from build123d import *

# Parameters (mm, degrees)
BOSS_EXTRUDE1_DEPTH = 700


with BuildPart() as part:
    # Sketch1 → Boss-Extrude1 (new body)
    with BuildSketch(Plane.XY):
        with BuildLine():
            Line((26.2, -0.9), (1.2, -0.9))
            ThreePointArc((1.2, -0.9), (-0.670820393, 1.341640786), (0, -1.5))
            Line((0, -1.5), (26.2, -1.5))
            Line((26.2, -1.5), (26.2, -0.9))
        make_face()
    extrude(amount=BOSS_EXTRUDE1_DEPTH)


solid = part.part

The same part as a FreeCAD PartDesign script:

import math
import FreeCAD as App
import Part
import Sketcher
Q = App.Units.Quantity

doc = App.newDocument("Part")
params = doc.addObject("Spreadsheet::Sheet", "Params")
for row, (alias, value) in enumerate([
    ("sketch1_radius", "1.5 mm"),
    ("sketch1_width", "25 mm"),
    ("sketch1_width2", "26.2 mm"),
    ("pad1_length", "700 mm"),
], start=1):
    params.set(f"A{row}", alias)
    params.set(f"B{row}", "=" + value)
    params.setAlias(f"B{row}", alias)

body = doc.addObject("PartDesign::Body", "Body")

# Sketch on XY plane
sketch1 = body.newObject("Sketcher::SketchObject", "Sketch")
sketch1.AttachmentSupport = (doc.getObject("XY_Plane"), [""])
sketch1.MapMode = "FlatFace"
sketch1.addGeometry([
    Part.LineSegment(App.Vector(26.2, -0.9, 0), App.Vector(1.2, -0.9, 0)),
    Part.ArcOfCircle(Part.Circle(App.Vector(0, 0, 0), App.Vector(0, 0, 1), 1.5), math.radians(-37), math.radians(270)),
    Part.LineSegment(App.Vector(0, -1.5, 0), App.Vector(26.2, -1.5, 0)),
    Part.LineSegment(App.Vector(26.2, -1.5, 0), App.Vector(26.2, -0.9, 0)),
], False)
sketch1.addConstraint([
    Sketcher.Constraint("Coincident", 0, 2, 1, 1),
    Sketcher.Constraint("Tangent", 1, 2, 2, 1),
    Sketcher.Constraint("Coincident", 2, 2, 3, 1),
    Sketcher.Constraint("Coincident", 3, 2, 0, 1),
    Sketcher.Constraint("Horizontal", 0),
    Sketcher.Constraint("Horizontal", 2),
    Sketcher.Constraint("Vertical", 3),
    Sketcher.Constraint("Coincident", 1, 3, -1, 1),
    Sketcher.Constraint("Radius", 1, Q("1.5 mm")),
    Sketcher.Constraint("DistanceX", 0, 2, 0, 1, Q("25 mm")),
    Sketcher.Constraint("DistanceX", 2, 1, 2, 2, Q("26.2 mm")),
])
sketch1.setExpression("Constraints[8]", "Params.sketch1_radius")
sketch1.setExpression("Constraints[9]", "Params.sketch1_width")
sketch1.setExpression("Constraints[10]", "Params.sketch1_width2")
pad1 = body.newObject("PartDesign::Pad", "Pad")
pad1.Profile = sketch1
pad1.setExpression("Length", "Params.pad1_length")

doc.recompute()
